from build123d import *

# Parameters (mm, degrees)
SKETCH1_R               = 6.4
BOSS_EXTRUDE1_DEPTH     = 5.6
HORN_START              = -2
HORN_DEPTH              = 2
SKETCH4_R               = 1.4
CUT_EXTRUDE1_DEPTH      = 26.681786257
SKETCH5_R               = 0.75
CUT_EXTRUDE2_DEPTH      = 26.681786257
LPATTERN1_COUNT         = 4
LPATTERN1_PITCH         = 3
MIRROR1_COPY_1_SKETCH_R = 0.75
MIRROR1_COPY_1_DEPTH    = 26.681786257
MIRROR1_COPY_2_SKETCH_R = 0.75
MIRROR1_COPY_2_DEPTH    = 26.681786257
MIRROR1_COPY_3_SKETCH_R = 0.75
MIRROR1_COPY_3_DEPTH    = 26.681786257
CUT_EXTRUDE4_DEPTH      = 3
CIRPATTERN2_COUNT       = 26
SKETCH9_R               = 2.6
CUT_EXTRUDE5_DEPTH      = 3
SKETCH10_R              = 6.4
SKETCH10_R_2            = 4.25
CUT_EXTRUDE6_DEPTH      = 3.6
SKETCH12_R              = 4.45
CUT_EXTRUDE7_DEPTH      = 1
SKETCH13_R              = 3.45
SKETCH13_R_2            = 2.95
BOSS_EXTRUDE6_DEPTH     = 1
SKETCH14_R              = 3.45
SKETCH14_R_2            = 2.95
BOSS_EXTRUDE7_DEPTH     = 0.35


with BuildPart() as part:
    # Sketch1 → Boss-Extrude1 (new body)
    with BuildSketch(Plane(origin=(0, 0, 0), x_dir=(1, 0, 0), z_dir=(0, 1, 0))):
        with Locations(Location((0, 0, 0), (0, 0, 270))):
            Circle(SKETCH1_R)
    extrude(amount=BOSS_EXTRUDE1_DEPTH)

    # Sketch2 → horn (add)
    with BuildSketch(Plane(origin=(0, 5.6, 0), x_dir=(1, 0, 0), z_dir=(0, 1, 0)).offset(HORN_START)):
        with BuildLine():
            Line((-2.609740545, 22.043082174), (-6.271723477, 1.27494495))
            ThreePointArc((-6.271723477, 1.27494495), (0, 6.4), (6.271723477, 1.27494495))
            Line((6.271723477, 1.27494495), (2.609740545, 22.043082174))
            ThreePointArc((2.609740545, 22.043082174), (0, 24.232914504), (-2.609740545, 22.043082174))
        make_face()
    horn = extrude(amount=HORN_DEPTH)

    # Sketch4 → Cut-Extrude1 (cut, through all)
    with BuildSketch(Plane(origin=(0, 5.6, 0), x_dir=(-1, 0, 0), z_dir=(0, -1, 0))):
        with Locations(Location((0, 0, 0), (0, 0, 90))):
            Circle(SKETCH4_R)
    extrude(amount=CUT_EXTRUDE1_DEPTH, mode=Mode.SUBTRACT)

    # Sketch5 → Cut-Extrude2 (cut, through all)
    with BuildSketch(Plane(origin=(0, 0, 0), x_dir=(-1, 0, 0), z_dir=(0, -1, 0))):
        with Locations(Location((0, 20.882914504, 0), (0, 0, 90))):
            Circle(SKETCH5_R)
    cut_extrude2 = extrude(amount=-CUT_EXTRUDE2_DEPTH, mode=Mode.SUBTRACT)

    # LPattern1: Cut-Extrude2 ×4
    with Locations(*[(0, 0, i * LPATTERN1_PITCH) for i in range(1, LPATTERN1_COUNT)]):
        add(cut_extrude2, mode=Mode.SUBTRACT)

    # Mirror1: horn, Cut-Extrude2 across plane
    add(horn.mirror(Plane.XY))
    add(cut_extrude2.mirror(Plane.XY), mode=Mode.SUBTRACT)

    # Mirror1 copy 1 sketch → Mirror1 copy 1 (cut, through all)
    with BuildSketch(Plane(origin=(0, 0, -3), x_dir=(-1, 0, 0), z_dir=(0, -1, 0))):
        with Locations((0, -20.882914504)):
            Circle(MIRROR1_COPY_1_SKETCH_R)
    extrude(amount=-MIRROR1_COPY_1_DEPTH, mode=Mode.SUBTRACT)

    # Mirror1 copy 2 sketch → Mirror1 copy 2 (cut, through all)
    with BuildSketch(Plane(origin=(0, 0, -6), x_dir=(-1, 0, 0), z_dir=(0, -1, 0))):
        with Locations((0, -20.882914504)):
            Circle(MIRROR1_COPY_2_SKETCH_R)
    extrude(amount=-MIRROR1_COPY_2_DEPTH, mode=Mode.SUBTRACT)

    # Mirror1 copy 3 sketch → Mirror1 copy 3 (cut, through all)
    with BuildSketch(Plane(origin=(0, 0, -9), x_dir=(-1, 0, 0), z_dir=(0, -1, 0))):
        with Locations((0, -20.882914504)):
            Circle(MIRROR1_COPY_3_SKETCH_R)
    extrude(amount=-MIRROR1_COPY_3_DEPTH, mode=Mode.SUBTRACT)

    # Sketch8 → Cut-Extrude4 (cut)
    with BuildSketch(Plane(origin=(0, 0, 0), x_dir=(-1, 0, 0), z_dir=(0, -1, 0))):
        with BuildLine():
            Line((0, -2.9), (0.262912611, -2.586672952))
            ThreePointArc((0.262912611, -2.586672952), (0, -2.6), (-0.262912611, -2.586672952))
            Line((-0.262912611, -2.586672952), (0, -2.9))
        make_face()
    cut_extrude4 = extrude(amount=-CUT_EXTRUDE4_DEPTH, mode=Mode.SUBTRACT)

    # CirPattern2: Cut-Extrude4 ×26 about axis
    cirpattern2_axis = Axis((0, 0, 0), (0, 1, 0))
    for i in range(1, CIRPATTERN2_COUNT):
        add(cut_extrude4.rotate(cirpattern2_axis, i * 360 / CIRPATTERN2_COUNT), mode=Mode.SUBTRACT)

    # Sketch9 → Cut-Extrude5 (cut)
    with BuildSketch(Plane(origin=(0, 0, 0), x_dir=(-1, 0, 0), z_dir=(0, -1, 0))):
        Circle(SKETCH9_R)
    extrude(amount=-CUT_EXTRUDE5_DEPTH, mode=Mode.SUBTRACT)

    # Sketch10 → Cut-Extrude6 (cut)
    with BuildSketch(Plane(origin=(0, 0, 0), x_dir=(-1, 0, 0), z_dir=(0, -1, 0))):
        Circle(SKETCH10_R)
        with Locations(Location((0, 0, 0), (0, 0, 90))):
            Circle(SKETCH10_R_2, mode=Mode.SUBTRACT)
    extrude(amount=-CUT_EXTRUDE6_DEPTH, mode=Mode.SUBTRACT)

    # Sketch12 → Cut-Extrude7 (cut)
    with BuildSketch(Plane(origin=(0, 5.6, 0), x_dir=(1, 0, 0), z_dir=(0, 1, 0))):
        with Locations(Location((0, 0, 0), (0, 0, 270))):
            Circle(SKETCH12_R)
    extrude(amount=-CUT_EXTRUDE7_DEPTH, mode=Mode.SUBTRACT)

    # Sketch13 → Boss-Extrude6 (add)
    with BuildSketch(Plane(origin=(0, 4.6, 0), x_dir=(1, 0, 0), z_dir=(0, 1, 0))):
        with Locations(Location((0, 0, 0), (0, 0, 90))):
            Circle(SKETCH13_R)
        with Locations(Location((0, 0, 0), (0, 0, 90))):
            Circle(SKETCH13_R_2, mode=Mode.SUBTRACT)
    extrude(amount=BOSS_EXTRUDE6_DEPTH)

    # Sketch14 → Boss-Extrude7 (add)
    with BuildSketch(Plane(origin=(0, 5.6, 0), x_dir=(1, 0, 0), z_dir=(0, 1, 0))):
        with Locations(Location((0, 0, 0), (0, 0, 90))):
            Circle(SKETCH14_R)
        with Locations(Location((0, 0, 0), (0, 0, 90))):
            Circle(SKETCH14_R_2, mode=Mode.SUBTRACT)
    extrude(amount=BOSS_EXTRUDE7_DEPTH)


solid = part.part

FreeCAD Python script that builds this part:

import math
import FreeCAD as App
import Part
import Sketcher

V = App.Vector
Q = App.Units.Quantity

doc = App.newDocument("Part")
params = doc.addObject("Spreadsheet::Sheet", "Params")
for row, (alias, value) in enumerate([
    ("sketch1_diameter", "12.8 mm"),
    ("pad1_length", "5.6 mm"),
    ("sketch2_radius", "6.4 mm"),
    ("sketch2_radius2", "2.65 mm"),
    ("pad2_length", "2 mm"),
    ("sketch3_diameter", "2.8 mm"),
    ("sketch4_diameter", "1.5 mm"),
    ("linearpattern_pitch", "3 mm"),
    ("sketch5_diameter", "1.5 mm"),
    ("sketch6_diameter", "1.5 mm"),
    ("sketch7_diameter", "1.5 mm"),
    ("sketch8_radius", "2.6 mm"),
    ("pocket6_length", "3 mm"),
    ("sketch9_diameter", "5.2 mm"),
    ("pocket7_length", "3 mm"),
    ("sketch10_diameter", "12.8 mm"),
    ("sketch10_diameter2", "8.5 mm"),
    ("pocket8_length", "3.6 mm"),
    ("sketch11_diameter", "8.9 mm"),
    ("pocket9_length", "1 mm"),
    ("sketch12_diameter", "6.9 mm"),
    ("sketch12_diameter2", "5.9 mm"),
    ("pad3_length", "1 mm"),
    ("sketch13_diameter", "6.9 mm"),
    ("sketch13_diameter2", "5.9 mm"),
    ("pad4_length", "0.35 mm"),
], start=1):
    params.set(f"A{row}", alias)
    params.set(f"B{row}", "=" + value)
    params.setAlias(f"B{row}", alias)

body = doc.addObject("PartDesign::Body", "Body")

# Sketch on XZ plane
sketch1 = body.newObject("Sketcher::SketchObject", "Sketch")
sketch1.AttachmentSupport = (doc.getObject("XZ_Plane"), [""])
sketch1.MapMode = "FlatFace"
sketch1.addGeometry(Part.Circle(V(0, 0, 0), V(0, 0, 1), 6.4), False)
sketch1.addConstraint(Sketcher.Constraint("Coincident", 0, 3, -1, 1))
sketch1.addConstraint(Sketcher.Constraint("Diameter", 0, Q("12.8 mm")))
sketch1.setExpression("Constraints[1]", "Params.sketch1_diameter")
pad1 = body.newObject("PartDesign::Pad", "Pad")
pad1.Profile = sketch1
pad1.setExpression("Length", "Params.pad1_length")
pad1.Reversed = True

# Sketch on XZ plane
sketch2 = body.newObject("Sketcher::SketchObject", "Sketch001")
sketch2.AttachmentSupport = (doc.getObject("XZ_Plane"), [""])
sketch2.MapMode = "FlatFace"
sketch2.AttachmentOffset = App.Placement(V(0, 0, -3.6), App.Rotation())
sketch2.addGeometry(Part.LineSegment(V(-2.609741, -22.043082, 0), V(-6.271723, -1.274945, 0)), False)
sketch2.addGeometry(Part.ArcOfCircle(Part.Circle(V(0, 0, 0), V(0, 0, 1), 6.4), math.radians(-168.509226), math.radians(-11.490774)), False)
sketch2.addGeometry(Part.LineSegment(V(6.271723, -1.274945, 0), V(2.609741, -22.043082, 0)), False)
sketch2.addGeometry(Part.ArcOfCircle(Part.Circle(V(0, -21.582915, 0), V(0, 0, 1), 2.65), math.radians(-170), math.radians(-10)), False)
sketch2.addConstraint(Sketcher.Constraint("Coincident", 0, 2, 1, 1))
sketch2.addConstraint(Sketcher.Constraint("Coincident", 1, 2, 2, 1))
sketch2.addConstraint(Sketcher.Constraint("Tangent", 2, 2, 3, 2))
sketch2.addConstraint(Sketcher.Constraint("Tangent", 3, 1, 0, 1))
sketch2.addConstraint(Sketcher.Constraint("Coincident", 1, 3, -1, 1))
sketch2.addConstraint(Sketcher.Constraint("PointOnObject", 3, 3, -2))
sketch2.addConstraint(Sketcher.Constraint("Horizontal", 0, 2, 1, 2))
sketch2.addConstraint(Sketcher.Constraint("Radius", 1, Q("6.4 mm")))
sketch2.addConstraint(Sketcher.Constraint("Angle", 0, Q("100 deg")))
sketch2.addConstraint(Sketcher.Constraint("Radius", 3, Q("2.65 mm")))
sketch2.addConstraint(Sketcher.Constraint("Distance", 0, Q("21.088519 mm")))
sketch2.setExpression("Constraints[7]", "Params.sketch2_radius")
sketch2.setExpression("Constraints[9]", "Params.sketch2_radius2")
pad2 = body.newObject("PartDesign::Pad", "Pad001")
pad2.Profile = sketch2
pad2.setExpression("Length", "Params.pad2_length")
pad2.Reversed = True

# Sketch on XZ plane
sketch3 = body.newObject("Sketcher::SketchObject", "Sketch002")
sketch3.AttachmentSupport = (doc.getObject("XZ_Plane"), [""])
sketch3.MapMode = "FlatFace"
sketch3.AttachmentOffset = App.Placement(V(0, 0, -5.6), App.Rotation())
sketch3.addGeometry(Part.Circle(V(0, 0, 0), V(0, 0, 1), 1.4), False)
sketch3.addConstraint(Sketcher.Constraint("Coincident", 0, 3, -1, 1))
sketch3.addConstraint(Sketcher.Constraint("Diameter", 0, Q("2.8 mm")))
sketch3.setExpression("Constraints[1]", "Params.sketch3_diameter")
pocket1 = body.newObject("PartDesign::Pocket", "Pocket")
pocket1.Profile = sketch3
pocket1.Type = "ThroughAll"
pocket1.Reversed = True

# Sketch on XZ plane
sketch4 = body.newObject("Sketcher::SketchObject", "Sketch003")
sketch4.AttachmentSupport = (doc.getObject("XZ_Plane"), [""])
sketch4.MapMode = "FlatFace"
sketch4.addGeometry(Part.Circle(V(0, -20.882915, 0), V(0, 0, 1), 0.75), False)
sketch4.addConstraint(Sketcher.Constraint("PointOnObject", 0, 3, -2))
sketch4.addConstraint(Sketcher.Constraint("Diameter", 0, Q("1.5 mm")))
sketch4.addConstraint(Sketcher.Constraint("DistanceY", 0, 3, -1, 1, Q("20.882915 mm")))
sketch4.setExpression("Constraints[1]", "Params.sketch4_diameter")
pocket2 = body.newObject("PartDesign::Pocket", "Pocket001")
pocket2.Profile = sketch4
pocket2.Type = "ThroughAll"
doc.recompute()

linearpattern = body.newObject("PartDesign::LinearPattern", "LinearPattern")
linearpattern.Originals = [pocket2]
linearpattern.Direction = (doc.getObject("Z_Axis"), [""])
linearpattern.Mode = "offset"
linearpattern.setExpression("Offset", "Params.linearpattern_pitch")
linearpattern.Occurrences = 4
body.Tip = linearpattern
doc.recompute()

mirrored = body.newObject("PartDesign::Mirrored", "Mirrored")
mirrored.Originals = [pad2, pocket2]
mirrored.MirrorPlane = (doc.getObject("XY_Plane"), [""])
body.Tip = mirrored

# Sketch on XZ plane
sketch5 = body.newObject("Sketcher::SketchObject", "Sketch004")
sketch5.AttachmentSupport = (doc.getObject("XZ_Plane"), [""])
sketch5.MapMode = "FlatFace"
sketch5.addGeometry(Part.Circle(V(0, 17.882915, 0), V(0, 0, 1), 0.75), False)
sketch5.addConstraint(Sketcher.Constraint("PointOnObject", 0, 3, -2))
sketch5.addConstraint(Sketcher.Constraint("Diameter", 0, Q("1.5 mm")))
sketch5.addConstraint(Sketcher.Constraint("DistanceY", -1, 1, 0, 3, Q("17.882915 mm")))
sketch5.setExpression("Constraints[1]", "Params.sketch5_diameter")
pocket3 = body.newObject("PartDesign::Pocket", "Pocket002")
pocket3.Profile = sketch5
pocket3.Type = "ThroughAll"

# Sketch on XZ plane
sketch6 = body.newObject("Sketcher::SketchObject", "Sketch005")
sketch6.AttachmentSupport = (doc.getObject("XZ_Plane"), [""])
sketch6.MapMode = "FlatFace"
sketch6.addGeometry(Part.Circle(V(0, 14.882915, 0), V(0, 0, 1), 0.75), False)
sketch6.addConstraint(Sketcher.Constraint("PointOnObject", 0, 3, -2))
sketch6.addConstraint(Sketcher.Constraint("Diameter", 0, Q("1.5 mm")))
sketch6.addConstraint(Sketcher.Constraint("DistanceY", -1, 1, 0, 3, Q("14.882915 mm")))
sketch6.setExpression("Constraints[1]", "Params.sketch6_diameter")
pocket4 = body.newObject("PartDesign::Pocket", "Pocket003")
pocket4.Profile = sketch6
pocket4.Type = "ThroughAll"

# Sketch on XZ plane
sketch7 = body.newObject("Sketcher::SketchObject", "Sketch006")
sketch7.AttachmentSupport = (doc.getObject("XZ_Plane"), [""])
sketch7.MapMode = "FlatFace"
sketch7.addGeometry(Part.Circle(V(0, 11.882915, 0), V(0, 0, 1), 0.75), False)
sketch7.addConstraint(Sketcher.Constraint("PointOnObject", 0, 3, -2))
sketch7.addConstraint(Sketcher.Constraint("Diameter", 0, Q("1.5 mm")))
sketch7.addConstraint(Sketcher.Constraint("DistanceY", -1, 1, 0, 3, Q("11.882915 mm")))
sketch7.setExpression("Constraints[1]", "Params.sketch7_diameter")
pocket5 = body.newObject("PartDesign::Pocket", "Pocket004")
pocket5.Profile = sketch7
pocket5.Type = "ThroughAll"

# Sketch on XZ plane
sketch8 = body.newObject("Sketcher::SketchObject", "Sketch007")
sketch8.AttachmentSupport = (doc.getObject("XZ_Plane"), [""])
sketch8.MapMode = "FlatFace"
sketch8.addGeometry(Part.LineSegment(V(0, 2.9, 0), V(-0.262913, 2.586673, 0)), False)
sketch8.addGeometry(Part.ArcOfCircle(Part.Circle(V(0, 0, 0), V(0, 0, 1), 2.6), math.radians(84.196318), math.radians(95.803682)), False)
sketch8.addGeometry(Part.LineSegment(V(0.262913, 2.586673, 0), V(0, 2.9, 0)), False)
sketch8.addConstraint(Sketcher.Constraint("Coincident", 0, 2, 1, 2))
sketch8.addConstraint(Sketcher.Constraint("Coincident", 1, 1, 2, 1))
sketch8.addConstraint(Sketcher.Constraint("Coincident", 2, 2, 0, 1))
sketch8.addConstraint(Sketcher.Constraint("Coincident", 1, 3, -1, 1))
sketch8.addConstraint(Sketcher.Constraint("PointOnObject", 2, 2, -2))
sketch8.addConstraint(Sketcher.Constraint("Horizontal", 0, 2, 1, 1))
sketch8.addConstraint(Sketcher.Constraint("Radius", 1, Q("2.6 mm")))
sketch8.addConstraint(Sketcher.Constraint("Angle", 0, Q("-130 deg")))
sketch8.addConstraint(Sketcher.Constraint("DistanceY", -1, 1, 2, 2, Q("2.9 mm")))
sketch8.setExpression("Constraints[6]", "Params.sketch8_radius")
pocket6 = body.newObject("PartDesign::Pocket", "Pocket005")
pocket6.Profile = sketch8
pocket6.setExpression("Length", "Params.pocket6_length")
doc.recompute()

polarpattern = body.newObject("PartDesign::PolarPattern", "PolarPattern")
polarpattern.Originals = [pocket6]
polarpattern.Axis = (doc.getObject("Y_Axis"), [""])
polarpattern.Angle = 360
polarpattern.Occurrences = 26
body.Tip = polarpattern

# Sketch on XZ plane
sketch9 = body.newObject("Sketcher::SketchObject", "Sketch008")
sketch9.AttachmentSupport = (doc.getObject("XZ_Plane"), [""])
sketch9.MapMode = "FlatFace"
sketch9.addGeometry(Part.Circle(V(0, 0, 0), V(0, 0, 1), 2.6), False)
sketch9.addConstraint(Sketcher.Constraint("Coincident", 0, 3, -1, 1))
sketch9.addConstraint(Sketcher.Constraint("Diameter", 0, Q("5.2 mm")))
sketch9.setExpression("Constraints[1]", "Params.sketch9_diameter")
pocket7 = body.newObject("PartDesign::Pocket", "Pocket006")
pocket7.Profile = sketch9
pocket7.setExpression("Length", "Params.pocket7_length")

# Sketch on XZ plane
sketch10 = body.newObject("Sketcher::SketchObject", "Sketch009")
sketch10.AttachmentSupport = (doc.getObject("XZ_Plane"), [""])
sketch10.MapMode = "FlatFace"
sketch10.addGeometry(Part.Circle(V(0, 0, 0), V(0, 0, 1), 6.4), False)
sketch10.addGeometry(Part.Circle(V(0, 0, 0), V(0, 0, 1), 4.25), False)
sketch10.addConstraint(Sketcher.Constraint("Coincident", 0, 3, -1, 1))
sketch10.addConstraint(Sketcher.Constraint("Coincident", 1, 3, -1, 1))
sketch10.addConstraint(Sketcher.Constraint("Diameter", 0, Q("12.8 mm")))
sketch10.addConstraint(Sketcher.Constraint("Diameter", 1, Q("8.5 mm")))
sketch10.setExpression("Constraints[2]", "Params.sketch10_diameter")
sketch10.setExpression("Constraints[3]", "Params.sketch10_diameter2")
pocket8 = body.newObject("PartDesign::Pocket", "Pocket007")
pocket8.Profile = sketch10
pocket8.setExpression("Length", "Params.pocket8_length")

# Sketch on XZ plane
sketch11 = body.newObject("Sketcher::SketchObject", "Sketch010")
sketch11.AttachmentSupport = (doc.getObject("XZ_Plane"), [""])
sketch11.MapMode = "FlatFace"
sketch11.AttachmentOffset = App.Placement(V(0, 0, -5.6), App.Rotation())
sketch11.addGeometry(Part.Circle(V(0, 0, 0), V(0, 0, 1), 4.45), False)
sketch11.addConstraint(Sketcher.Constraint("Coincident", 0, 3, -1, 1))
sketch11.addConstraint(Sketcher.Constraint("Diameter", 0, Q("8.9 mm")))
sketch11.setExpression("Constraints[1]", "Params.sketch11_diameter")
pocket9 = body.newObject("PartDesign::Pocket", "Pocket008")
pocket9.Profile = sketch11
pocket9.setExpression("Length", "Params.pocket9_length")
pocket9.Reversed = True

# Sketch on XZ plane
sketch12 = body.newObject("Sketcher::SketchObject", "Sketch011")
sketch12.AttachmentSupport = (doc.getObject("XZ_Plane"), [""])
sketch12.MapMode = "FlatFace"
sketch12.AttachmentOffset = App.Placement(V(0, 0, -4.6), App.Rotation())
sketch12.addGeometry(Part.Circle(V(0, 0, 0), V(0, 0, 1), 3.45), False)
sketch12.addGeometry(Part.Circle(V(0, 0, 0), V(0, 0, 1), 2.95), False)
sketch12.addConstraint(Sketcher.Constraint("Coincident", 0, 3, -1, 1))
sketch12.addConstraint(Sketcher.Constraint("Coincident", 1, 3, -1, 1))
sketch12.addConstraint(Sketcher.Constraint("Diameter", 0, Q("6.9 mm")))
sketch12.addConstraint(Sketcher.Constraint("Diameter", 1, Q("5.9 mm")))
sketch12.setExpression("Constraints[2]", "Params.sketch12_diameter")
sketch12.setExpression("Constraints[3]", "Params.sketch12_diameter2")
pad3 = body.newObject("PartDesign::Pad", "Pad002")
pad3.Profile = sketch12
pad3.setExpression("Length", "Params.pad3_length")
pad3.Reversed = True

# Sketch on XZ plane
sketch13 = body.newObject("Sketcher::SketchObject", "Sketch012")
sketch13.AttachmentSupport = (doc.getObject("XZ_Plane"), [""])
sketch13.MapMode = "FlatFace"
sketch13.AttachmentOffset = App.Placement(V(0, 0, -5.6), App.Rotation())
sketch13.addGeometry(Part.Circle(V(0, 0, 0), V(0, 0, 1), 3.45), False)
sketch13.addGeometry(Part.Circle(V(0, 0, 0), V(0, 0, 1), 2.95), False)
sketch13.addConstraint(Sketcher.Constraint("Coincident", 0, 3, -1, 1))
sketch13.addConstraint(Sketcher.Constraint("Coincident", 1, 3, -1, 1))
sketch13.addConstraint(Sketcher.Constraint("Diameter", 0, Q("6.9 mm")))
sketch13.addConstraint(Sketcher.Constraint("Diameter", 1, Q("5.9 mm")))
sketch13.setExpression("Constraints[2]", "Params.sketch13_diameter")
sketch13.setExpression("Constraints[3]", "Params.sketch13_diameter2")
pad4 = body.newObject("PartDesign::Pad", "Pad003")
pad4.Profile = sketch13
pad4.setExpression("Length", "Params.pad4_length")
pad4.Reversed = True

doc.recompute()
